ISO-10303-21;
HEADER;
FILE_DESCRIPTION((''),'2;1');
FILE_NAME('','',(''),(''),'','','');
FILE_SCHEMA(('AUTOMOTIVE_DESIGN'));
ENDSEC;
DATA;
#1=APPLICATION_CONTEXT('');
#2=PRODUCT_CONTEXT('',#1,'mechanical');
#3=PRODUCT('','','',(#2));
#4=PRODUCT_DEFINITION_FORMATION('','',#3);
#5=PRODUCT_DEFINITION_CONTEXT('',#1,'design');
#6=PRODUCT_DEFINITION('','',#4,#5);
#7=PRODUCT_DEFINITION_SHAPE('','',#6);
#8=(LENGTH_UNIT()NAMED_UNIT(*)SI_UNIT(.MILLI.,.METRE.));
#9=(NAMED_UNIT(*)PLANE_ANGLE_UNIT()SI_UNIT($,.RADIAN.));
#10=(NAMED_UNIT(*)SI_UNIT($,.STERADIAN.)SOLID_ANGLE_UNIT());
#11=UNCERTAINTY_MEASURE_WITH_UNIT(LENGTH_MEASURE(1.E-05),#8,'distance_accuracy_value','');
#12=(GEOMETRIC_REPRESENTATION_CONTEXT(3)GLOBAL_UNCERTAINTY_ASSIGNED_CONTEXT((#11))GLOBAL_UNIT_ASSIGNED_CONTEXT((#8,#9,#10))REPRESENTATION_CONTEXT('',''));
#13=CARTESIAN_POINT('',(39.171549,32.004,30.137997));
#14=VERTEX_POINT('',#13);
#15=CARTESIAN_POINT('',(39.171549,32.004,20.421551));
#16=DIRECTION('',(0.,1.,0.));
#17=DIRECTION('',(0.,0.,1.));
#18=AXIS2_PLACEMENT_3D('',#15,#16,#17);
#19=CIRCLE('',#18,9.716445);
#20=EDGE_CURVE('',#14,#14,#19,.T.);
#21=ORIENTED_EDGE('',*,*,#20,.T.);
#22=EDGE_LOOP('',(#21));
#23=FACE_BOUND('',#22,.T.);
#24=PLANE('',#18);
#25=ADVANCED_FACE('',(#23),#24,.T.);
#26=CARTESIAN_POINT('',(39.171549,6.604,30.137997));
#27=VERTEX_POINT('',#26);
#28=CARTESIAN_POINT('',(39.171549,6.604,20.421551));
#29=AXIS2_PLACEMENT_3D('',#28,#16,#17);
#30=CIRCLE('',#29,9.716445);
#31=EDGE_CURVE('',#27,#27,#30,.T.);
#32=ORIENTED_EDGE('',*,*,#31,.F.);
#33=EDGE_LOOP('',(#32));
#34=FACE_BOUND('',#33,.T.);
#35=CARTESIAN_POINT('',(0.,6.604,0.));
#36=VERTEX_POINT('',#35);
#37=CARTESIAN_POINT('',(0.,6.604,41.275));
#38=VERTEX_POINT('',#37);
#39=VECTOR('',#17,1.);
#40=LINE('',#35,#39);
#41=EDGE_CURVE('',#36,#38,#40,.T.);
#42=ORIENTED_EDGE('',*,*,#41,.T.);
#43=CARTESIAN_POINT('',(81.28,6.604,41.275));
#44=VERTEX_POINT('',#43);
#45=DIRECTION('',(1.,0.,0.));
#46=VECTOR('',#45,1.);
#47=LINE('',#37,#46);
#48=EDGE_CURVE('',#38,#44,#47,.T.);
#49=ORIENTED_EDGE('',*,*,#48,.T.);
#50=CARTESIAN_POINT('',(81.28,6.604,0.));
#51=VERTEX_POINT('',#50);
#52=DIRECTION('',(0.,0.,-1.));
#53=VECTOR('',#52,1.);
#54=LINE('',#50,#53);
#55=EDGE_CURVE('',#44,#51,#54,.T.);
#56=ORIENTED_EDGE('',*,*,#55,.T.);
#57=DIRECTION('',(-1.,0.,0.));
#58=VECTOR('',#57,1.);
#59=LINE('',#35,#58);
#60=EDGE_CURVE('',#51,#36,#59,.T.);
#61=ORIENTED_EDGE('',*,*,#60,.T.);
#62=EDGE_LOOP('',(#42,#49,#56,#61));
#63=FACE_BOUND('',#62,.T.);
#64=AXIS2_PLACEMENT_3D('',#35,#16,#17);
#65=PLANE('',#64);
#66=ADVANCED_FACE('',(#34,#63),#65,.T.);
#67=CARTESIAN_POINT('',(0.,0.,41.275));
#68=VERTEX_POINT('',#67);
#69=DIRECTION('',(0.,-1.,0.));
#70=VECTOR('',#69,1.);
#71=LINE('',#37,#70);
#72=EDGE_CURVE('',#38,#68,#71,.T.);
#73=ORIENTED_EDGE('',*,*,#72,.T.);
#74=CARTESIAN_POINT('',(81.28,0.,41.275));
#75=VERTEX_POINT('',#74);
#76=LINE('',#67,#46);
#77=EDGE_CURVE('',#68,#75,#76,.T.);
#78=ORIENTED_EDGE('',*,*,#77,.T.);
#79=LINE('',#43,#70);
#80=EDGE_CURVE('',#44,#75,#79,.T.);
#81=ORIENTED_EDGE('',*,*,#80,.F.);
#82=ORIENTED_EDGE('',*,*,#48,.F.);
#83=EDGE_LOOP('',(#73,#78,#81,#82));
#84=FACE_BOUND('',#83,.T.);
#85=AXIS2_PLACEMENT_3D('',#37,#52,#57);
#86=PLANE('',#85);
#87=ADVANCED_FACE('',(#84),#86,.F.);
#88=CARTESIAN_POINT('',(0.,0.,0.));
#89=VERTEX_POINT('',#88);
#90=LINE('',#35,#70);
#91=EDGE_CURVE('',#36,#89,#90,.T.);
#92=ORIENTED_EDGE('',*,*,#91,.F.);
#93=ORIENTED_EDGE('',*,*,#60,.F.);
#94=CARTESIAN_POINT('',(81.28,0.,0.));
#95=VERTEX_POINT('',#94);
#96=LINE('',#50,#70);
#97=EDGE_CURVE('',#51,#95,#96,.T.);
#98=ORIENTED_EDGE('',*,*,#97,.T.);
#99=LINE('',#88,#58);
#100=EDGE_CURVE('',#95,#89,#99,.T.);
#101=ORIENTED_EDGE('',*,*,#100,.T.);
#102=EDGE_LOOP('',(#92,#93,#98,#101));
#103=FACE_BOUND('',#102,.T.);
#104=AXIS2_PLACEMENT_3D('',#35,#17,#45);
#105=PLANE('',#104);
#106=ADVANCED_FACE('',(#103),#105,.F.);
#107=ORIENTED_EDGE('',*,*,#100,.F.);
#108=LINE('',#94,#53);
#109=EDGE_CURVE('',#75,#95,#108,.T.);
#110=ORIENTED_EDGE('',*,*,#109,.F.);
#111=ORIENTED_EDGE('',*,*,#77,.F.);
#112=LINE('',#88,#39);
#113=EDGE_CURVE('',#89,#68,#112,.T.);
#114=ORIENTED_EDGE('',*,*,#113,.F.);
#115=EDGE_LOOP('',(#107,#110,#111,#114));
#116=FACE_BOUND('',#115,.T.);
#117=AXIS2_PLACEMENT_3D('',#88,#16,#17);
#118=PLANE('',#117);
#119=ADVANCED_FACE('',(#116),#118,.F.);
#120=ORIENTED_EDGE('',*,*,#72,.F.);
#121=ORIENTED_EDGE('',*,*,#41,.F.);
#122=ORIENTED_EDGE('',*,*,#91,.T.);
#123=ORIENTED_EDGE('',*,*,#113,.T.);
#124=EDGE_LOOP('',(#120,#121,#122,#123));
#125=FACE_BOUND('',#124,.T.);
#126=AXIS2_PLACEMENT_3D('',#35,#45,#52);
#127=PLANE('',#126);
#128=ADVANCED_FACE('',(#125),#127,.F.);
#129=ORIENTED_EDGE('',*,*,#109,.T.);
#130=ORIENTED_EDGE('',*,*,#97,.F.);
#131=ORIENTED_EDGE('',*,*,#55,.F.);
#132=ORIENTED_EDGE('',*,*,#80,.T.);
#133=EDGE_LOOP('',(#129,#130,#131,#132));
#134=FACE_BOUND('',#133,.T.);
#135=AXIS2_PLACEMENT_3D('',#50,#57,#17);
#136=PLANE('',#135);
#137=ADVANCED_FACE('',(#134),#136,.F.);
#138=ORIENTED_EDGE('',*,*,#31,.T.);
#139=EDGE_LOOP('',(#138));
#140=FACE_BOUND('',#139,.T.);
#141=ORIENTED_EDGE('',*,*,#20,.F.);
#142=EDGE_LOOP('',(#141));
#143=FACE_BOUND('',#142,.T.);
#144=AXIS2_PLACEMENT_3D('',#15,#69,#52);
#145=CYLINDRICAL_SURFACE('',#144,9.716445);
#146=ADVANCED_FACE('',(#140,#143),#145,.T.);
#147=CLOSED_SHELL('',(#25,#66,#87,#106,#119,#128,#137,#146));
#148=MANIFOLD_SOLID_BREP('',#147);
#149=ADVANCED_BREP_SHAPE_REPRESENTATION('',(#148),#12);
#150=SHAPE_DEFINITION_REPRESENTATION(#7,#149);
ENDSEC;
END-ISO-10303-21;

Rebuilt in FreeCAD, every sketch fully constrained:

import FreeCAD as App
import Part
import Sketcher

V = App.Vector
Q = App.Units.Quantity

doc = App.newDocument("Part")
body = doc.addObject("PartDesign::Body", "Body")

sketch1 = body.newObject("Sketcher::SketchObject", "Sketch")
sketch1.AttachmentSupport = (doc.getObject("XZ_Plane"), [""])
sketch1.MapMode = "FlatFace"
sketch1.addGeometry(Part.LineSegment(V(0, 0, 0), V(0, 41.275, 0)), False)
sketch1.addGeometry(Part.LineSegment(V(0, 41.275, 0), V(81.28, 41.275, 0)), False)
sketch1.addGeometry(Part.LineSegment(V(81.28, 41.275, 0), V(81.28, 0, 0)), False)
sketch1.addGeometry(Part.LineSegment(V(81.28, 0, 0), V(0, 0, 0)), False)
sketch1.addConstraint(Sketcher.Constraint("Coincident", 0, 2, 1, 1))
sketch1.addConstraint(Sketcher.Constraint("Coincident", 1, 2, 2, 1))
sketch1.addConstraint(Sketcher.Constraint("Coincident", 2, 2, 3, 1))
sketch1.addConstraint(Sketcher.Constraint("Coincident", 3, 2, 0, 1))
sketch1.addConstraint(Sketcher.Constraint("Vertical", 0))
sketch1.addConstraint(Sketcher.Constraint("Horizontal", 1))
sketch1.addConstraint(Sketcher.Constraint("Vertical", 2))
sketch1.addConstraint(Sketcher.Constraint("Horizontal", 3))
sketch1.addConstraint(Sketcher.Constraint("Coincident", 3, 2, -1, 1))
sketch1.addConstraint(Sketcher.Constraint("DistanceX", 1, 1, 1, 2, Q("3.2 in")))
sketch1.addConstraint(Sketcher.Constraint("DistanceY", 0, 1, 0, 2, Q("1.625 in")))
pad1 = body.newObject("PartDesign::Pad", "Pad")
pad1.Profile = sketch1
pad1.Length = Q("0.26 in")
pad1.Reversed = True

sketch2 = body.newObject("Sketcher::SketchObject", "Sketch001")
sketch2.AttachmentSupport = (doc.getObject("XZ_Plane"), [""])
sketch2.MapMode = "FlatFace"
sketch2.AttachmentOffset = App.Placement(V(0, 0, -0.26 * 25.4), App.Rotation())
sketch2.addGeometry(Part.Circle(V(39.171549, 20.421551, 0), V(0, 0, 1), 9.716445), False)
sketch2.addConstraint(Sketcher.Constraint("Diameter", 0, 19.432891))
sketch2.addConstraint(Sketcher.Constraint("DistanceX", -1, 1, 0, 3, 39.171549))
sketch2.addConstraint(Sketcher.Constraint("DistanceY", -1, 1, 0, 3, 20.421551))
pad2 = body.newObject("PartDesign::Pad", "Pad001")
pad2.Profile = sketch2
pad2.Length = Q("1 in")
pad2.Reversed = True

doc.recompute()
